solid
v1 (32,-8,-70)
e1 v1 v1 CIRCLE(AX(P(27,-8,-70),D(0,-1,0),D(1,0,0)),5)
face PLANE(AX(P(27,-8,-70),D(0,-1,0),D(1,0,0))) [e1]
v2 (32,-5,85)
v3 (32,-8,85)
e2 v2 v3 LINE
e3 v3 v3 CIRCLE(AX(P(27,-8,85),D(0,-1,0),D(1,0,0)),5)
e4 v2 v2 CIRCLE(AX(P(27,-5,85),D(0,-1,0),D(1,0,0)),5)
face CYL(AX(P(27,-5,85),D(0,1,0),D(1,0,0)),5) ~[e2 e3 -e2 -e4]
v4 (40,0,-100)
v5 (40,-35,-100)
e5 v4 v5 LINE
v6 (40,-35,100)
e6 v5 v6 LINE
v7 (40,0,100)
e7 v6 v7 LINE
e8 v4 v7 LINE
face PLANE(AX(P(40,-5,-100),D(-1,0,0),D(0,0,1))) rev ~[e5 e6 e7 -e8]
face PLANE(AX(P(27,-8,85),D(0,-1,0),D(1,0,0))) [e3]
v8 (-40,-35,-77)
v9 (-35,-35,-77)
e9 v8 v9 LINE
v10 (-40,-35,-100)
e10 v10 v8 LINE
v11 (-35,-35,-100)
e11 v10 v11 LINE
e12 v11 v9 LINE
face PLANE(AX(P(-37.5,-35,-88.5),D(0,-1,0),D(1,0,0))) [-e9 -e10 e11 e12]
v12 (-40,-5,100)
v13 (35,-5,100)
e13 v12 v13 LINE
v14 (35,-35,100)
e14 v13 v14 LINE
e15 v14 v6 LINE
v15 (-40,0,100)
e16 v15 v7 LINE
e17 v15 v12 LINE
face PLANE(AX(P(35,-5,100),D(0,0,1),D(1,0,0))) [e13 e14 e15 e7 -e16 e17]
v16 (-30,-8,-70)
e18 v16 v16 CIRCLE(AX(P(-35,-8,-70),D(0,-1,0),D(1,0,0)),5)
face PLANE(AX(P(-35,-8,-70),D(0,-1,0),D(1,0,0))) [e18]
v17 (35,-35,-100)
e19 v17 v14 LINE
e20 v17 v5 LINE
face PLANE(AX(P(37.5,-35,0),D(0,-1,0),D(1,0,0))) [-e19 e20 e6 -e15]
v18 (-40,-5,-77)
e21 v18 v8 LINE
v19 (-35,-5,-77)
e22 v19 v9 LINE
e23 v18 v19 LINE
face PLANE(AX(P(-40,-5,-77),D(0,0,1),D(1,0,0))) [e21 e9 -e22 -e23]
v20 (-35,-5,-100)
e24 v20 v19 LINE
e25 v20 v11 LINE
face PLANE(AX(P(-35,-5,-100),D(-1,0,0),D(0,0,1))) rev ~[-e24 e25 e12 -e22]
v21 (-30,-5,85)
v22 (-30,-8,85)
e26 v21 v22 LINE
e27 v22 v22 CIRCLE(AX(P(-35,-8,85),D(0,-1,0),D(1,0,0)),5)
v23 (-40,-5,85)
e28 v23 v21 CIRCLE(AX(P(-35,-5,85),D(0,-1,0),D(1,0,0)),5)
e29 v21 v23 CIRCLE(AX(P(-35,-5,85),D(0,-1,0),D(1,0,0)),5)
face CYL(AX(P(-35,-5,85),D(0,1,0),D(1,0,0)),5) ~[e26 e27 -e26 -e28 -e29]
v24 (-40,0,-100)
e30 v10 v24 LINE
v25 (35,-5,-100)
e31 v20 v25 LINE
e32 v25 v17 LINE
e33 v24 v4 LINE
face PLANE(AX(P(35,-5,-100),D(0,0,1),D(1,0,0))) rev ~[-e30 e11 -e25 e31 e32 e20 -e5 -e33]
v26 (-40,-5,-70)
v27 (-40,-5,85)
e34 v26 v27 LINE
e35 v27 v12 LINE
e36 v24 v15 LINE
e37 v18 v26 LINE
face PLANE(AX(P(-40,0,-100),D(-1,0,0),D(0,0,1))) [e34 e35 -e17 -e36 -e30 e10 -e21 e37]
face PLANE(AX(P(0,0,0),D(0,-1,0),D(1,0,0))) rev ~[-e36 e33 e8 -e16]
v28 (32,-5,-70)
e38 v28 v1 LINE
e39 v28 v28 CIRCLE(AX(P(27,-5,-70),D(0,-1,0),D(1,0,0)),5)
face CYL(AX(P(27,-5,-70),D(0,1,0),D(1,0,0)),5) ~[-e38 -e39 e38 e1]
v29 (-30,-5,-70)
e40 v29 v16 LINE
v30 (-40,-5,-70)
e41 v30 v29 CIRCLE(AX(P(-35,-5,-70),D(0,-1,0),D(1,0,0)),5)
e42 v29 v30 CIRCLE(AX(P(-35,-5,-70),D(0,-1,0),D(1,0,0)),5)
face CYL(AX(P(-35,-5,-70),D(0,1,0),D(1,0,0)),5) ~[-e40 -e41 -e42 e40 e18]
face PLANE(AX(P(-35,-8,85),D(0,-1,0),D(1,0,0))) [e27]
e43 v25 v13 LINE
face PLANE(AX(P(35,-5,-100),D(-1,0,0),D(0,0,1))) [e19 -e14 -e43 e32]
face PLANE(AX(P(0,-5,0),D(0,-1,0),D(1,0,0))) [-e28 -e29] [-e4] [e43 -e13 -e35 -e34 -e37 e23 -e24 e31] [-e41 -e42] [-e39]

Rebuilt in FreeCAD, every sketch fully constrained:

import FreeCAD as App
import Part
import Sketcher

V = App.Vector
Q = App.Units.Quantity


def add_polygon(sketch, points):
    """Adds a closed chain of lines whose ends are joined by coincident constraints."""
    first, n = sketch.GeometryCount, len(points)
    for a, b in zip(points, points[1:] + points[:1]):
        sketch.addGeometry(Part.LineSegment(App.Vector(*a, 0), App.Vector(*b, 0)), False)
    for i in range(n):
        sketch.addConstraint(Sketcher.Constraint("Coincident", first + i, 2, first + (i + 1) % n, 1))

doc = App.newDocument("Part")
body = doc.addObject("PartDesign::Body", "Body")

# Sketch on XZ plane
sketch1 = body.newObject("Sketcher::SketchObject", "Sketch")
sketch1.AttachmentSupport = (doc.getObject("XZ_Plane"), [""])
sketch1.MapMode = "FlatFace"
add_polygon(sketch1, [(-40, 100), (-40, -100), (40, -100), (40, 100)])  # lines 0-3
sketch1.addConstraint([
    Sketcher.Constraint("Vertical", 0),
    Sketcher.Constraint("Horizontal", 1),
    Sketcher.Constraint("Vertical", 2),
    Sketcher.Constraint("Horizontal", 3),
    Sketcher.Constraint("Symmetric", 0, 2, 2, 2, -1, 1),
    Sketcher.Constraint("DistanceX", 1, 1, 1, 2, Q("80 mm")),
    Sketcher.Constraint("DistanceY", 0, 2, 0, 1, Q("200 mm")),
])
pad1 = body.newObject("PartDesign::Pad", "Pad")
pad1.Profile = sketch1
pad1.Length = 5

# Sketch on XZ plane
sketch2 = body.newObject("Sketcher::SketchObject", "Sketch001")
sketch2.AttachmentSupport = (doc.getObject("XZ_Plane"), [""])
sketch2.MapMode = "FlatFace"
sketch2.AttachmentOffset = App.Placement(V(0, 0, 5), App.Rotation())
sketch2.addGeometry([
    Part.Circle(V(-35, 85, 0), V(0, 0, 1), 5),
    Part.Circle(V(27, 85, 0), V(0, 0, 1), 5),
    Part.Circle(V(-35, -70, 0), V(0, 0, 1), 5),
    Part.Circle(V(27, -70, 0), V(0, 0, 1), 5),
], False)
sketch2.addConstraint([
    Sketcher.Constraint("Equal", 0, 1),
    Sketcher.Constraint("Equal", 1, 2),
    Sketcher.Constraint("Equal", 2, 3),
    Sketcher.Constraint("Horizontal", 0, 3, 1, 3),
    Sketcher.Constraint("Horizontal", 2, 3, 3, 3),
    Sketcher.Constraint("Vertical", 0, 3, 2, 3),
    Sketcher.Constraint("Vertical", 1, 3, 3, 3),
    Sketcher.Constraint("Diameter", 0, Q("10 mm")),
    Sketcher.Constraint("DistanceX", 0, 3, -1, 1, Q("35 mm")),
    Sketcher.Constraint("DistanceY", -1, 1, 0, 3, Q("85 mm")),
    Sketcher.Constraint("DistanceX", -1, 1, 1, 3, Q("27 mm")),
    Sketcher.Constraint("DistanceY", 2, 3, -1, 1, Q("70 mm")),
])
pad2 = body.newObject("PartDesign::Pad", "Pad001")
pad2.Profile = sketch2
pad2.Length = 3

# Sketch on XZ plane
sketch3 = body.newObject("Sketcher::SketchObject", "Sketch002")
sketch3.AttachmentSupport = (doc.getObject("XZ_Plane"), [""])
sketch3.MapMode = "FlatFace"
sketch3.AttachmentOffset = App.Placement(V(0, 0, 5), App.Rotation())
add_polygon(sketch3, [(35, 100), (35, -100), (40, -100), (40, 100)])  # lines 0-3
add_polygon(sketch3, [(-40, -77), (-40, -100), (-35, -100), (-35, -77)])  # lines 4-7
sketch3.addConstraint([
    Sketcher.Constraint("Vertical", 0),
    Sketcher.Constraint("Horizontal", 1),
    Sketcher.Constraint("Vertical", 2),
    Sketcher.Constraint("Horizontal", 3),
    Sketcher.Constraint("Vertical", 4),
    Sketcher.Constraint("Horizontal", 5),
    Sketcher.Constraint("Vertical", 6),
    Sketcher.Constraint("Horizontal", 7),
    Sketcher.Constraint("Symmetric", 2, 2, 4, 2, -1, 1),
    Sketcher.Constraint("Symmetric", 0, 2, 5, 2, -2),
    Sketcher.Constraint("DistanceX", 1, 1, 1, 2, Q("5 mm")),
    Sketcher.Constraint("DistanceY", 0, 2, 0, 1, Q("200 mm")),
    Sketcher.Constraint("DistanceY", 4, 2, 4, 1, Q("23 mm")),
    Sketcher.Constraint("DistanceX", -1, 1, 0, 2, Q("35 mm")),
])
pad3 = body.newObject("PartDesign::Pad", "Pad002")
pad3.Profile = sketch3
pad3.Length = 30

doc.recompute()
